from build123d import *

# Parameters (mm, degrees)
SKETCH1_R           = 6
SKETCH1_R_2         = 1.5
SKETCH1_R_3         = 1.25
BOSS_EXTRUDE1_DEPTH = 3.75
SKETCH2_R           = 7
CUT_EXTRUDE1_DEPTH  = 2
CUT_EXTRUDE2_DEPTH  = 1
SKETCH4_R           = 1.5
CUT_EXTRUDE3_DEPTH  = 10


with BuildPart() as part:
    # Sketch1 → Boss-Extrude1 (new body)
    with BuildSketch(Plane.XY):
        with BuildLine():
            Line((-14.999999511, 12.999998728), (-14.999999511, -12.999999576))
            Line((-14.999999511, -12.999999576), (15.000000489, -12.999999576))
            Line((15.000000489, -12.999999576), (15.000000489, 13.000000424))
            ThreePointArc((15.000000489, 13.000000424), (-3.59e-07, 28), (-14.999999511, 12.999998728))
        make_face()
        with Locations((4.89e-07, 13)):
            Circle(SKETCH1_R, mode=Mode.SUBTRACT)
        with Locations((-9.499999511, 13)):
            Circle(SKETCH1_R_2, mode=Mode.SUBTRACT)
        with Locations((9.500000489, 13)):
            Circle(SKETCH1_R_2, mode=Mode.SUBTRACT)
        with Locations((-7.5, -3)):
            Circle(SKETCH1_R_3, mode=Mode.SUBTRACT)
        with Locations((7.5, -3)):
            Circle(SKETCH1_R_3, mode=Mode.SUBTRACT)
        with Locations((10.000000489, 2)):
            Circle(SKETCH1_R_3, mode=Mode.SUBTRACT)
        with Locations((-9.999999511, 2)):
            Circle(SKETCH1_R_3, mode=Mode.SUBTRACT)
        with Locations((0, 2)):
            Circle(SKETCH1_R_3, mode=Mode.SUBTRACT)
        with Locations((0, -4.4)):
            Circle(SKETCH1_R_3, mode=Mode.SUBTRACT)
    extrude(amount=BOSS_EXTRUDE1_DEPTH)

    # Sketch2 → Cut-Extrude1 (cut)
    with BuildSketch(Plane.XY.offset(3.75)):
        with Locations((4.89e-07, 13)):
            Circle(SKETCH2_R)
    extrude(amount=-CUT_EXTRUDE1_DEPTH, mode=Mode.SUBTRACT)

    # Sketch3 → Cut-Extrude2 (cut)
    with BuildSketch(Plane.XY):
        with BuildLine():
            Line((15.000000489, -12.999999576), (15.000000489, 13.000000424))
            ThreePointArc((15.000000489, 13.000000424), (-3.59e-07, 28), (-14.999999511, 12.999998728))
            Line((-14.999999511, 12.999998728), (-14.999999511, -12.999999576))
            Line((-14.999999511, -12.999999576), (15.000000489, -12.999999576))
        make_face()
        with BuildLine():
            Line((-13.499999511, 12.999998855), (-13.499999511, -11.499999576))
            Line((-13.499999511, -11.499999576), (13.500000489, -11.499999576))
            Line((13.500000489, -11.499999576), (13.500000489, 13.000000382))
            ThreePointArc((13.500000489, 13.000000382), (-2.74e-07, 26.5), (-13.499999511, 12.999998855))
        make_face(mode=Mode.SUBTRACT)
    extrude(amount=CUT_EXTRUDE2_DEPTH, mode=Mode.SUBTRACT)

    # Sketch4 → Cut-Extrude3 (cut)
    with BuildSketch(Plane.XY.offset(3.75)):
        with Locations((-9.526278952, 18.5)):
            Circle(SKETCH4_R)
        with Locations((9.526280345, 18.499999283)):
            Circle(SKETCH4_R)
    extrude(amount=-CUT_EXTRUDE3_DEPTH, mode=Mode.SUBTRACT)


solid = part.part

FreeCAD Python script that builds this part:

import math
import FreeCAD as App
import Part
import Sketcher
from FreeCAD import Vector
Q = App.Units.Quantity

doc = App.newDocument("Part")
body = doc.addObject("PartDesign::Body", "Body")

sketch1 = doc.addObject("Sketcher::SketchObject", "Sketch")
body.addObject(sketch1)
sketch1.AttachmentSupport = (doc.XY_Plane, [""])
sketch1.MapMode = "FlatFace"
sketch1.addGeometry(Part.LineSegment(Vector(-15, 13, 0), Vector(-15, -13, 0)), False)
sketch1.addGeometry(Part.LineSegment(Vector(-15, -13, 0), Vector(15, -13, 0)), False)
sketch1.addGeometry(Part.LineSegment(Vector(15, -13, 0), Vector(15, 13, 0)), False)
sketch1.addGeometry(Part.ArcOfCircle(Part.Circle(Vector(0, 13, 0), Vector(0, 0, 1), 15), math.radians(0), math.radians(180)), False)
sketch1.addGeometry(Part.Circle(Vector(-7.5, -3, 0), Vector(0, 0, 1), 1.2), False)
sketch1.addGeometry(Part.Circle(Vector(0, -4.4, 0), Vector(0, 0, 1), 1.2), False)
sketch1.addGeometry(Part.Circle(Vector(-10, 2, 0), Vector(0, 0, 1), 1.2), False)
sketch1.addGeometry(Part.Circle(Vector(0, 2, 0), Vector(0, 0, 1), 1.2), False)
sketch1.addGeometry(Part.Circle(Vector(7.5, -3, 0), Vector(0, 0, 1), 1.2), False)
sketch1.addGeometry(Part.Circle(Vector(10, 2, 0), Vector(0, 0, 1), 1.2), False)
sketch1.addGeometry(Part.Circle(Vector(-9.5, 13, 0), Vector(0, 0, 1), 1.5), False)
sketch1.addGeometry(Part.Circle(Vector(0, 13, 0), Vector(0, 0, 1), 6), False)
sketch1.addGeometry(Part.Circle(Vector(9.5, 13, 0), Vector(0, 0, 1), 1.5), False)
sketch1.addConstraint(Sketcher.Constraint("Coincident", 0, 2, 1, 1))
sketch1.addConstraint(Sketcher.Constraint("Coincident", 1, 2, 2, 1))
sketch1.addConstraint(Sketcher.Constraint("Tangent", 2, 2, 3, 1))
sketch1.addConstraint(Sketcher.Constraint("Tangent", 3, 2, 0, 1))
sketch1.addConstraint(Sketcher.Constraint("Vertical", 0))
sketch1.addConstraint(Sketcher.Constraint("Horizontal", 1))
sketch1.addConstraint(Sketcher.Constraint("Vertical", 2))
sketch1.addConstraint(Sketcher.Constraint("Coincident", 11, 3, 3, 3))
sketch1.addConstraint(Sketcher.Constraint("Equal", 4, 5))
sketch1.addConstraint(Sketcher.Constraint("Equal", 5, 6))
sketch1.addConstraint(Sketcher.Constraint("Equal", 6, 7))
sketch1.addConstraint(Sketcher.Constraint("Equal", 7, 8))
sketch1.addConstraint(Sketcher.Constraint("Equal", 8, 9))
sketch1.addConstraint(Sketcher.Constraint("Equal", 10, 12))
sketch1.addConstraint(Sketcher.Constraint("Symmetric", 0, 2, 2, 2, -1, 1))
sketch1.addConstraint(Sketcher.Constraint("Symmetric", 4, 3, 8, 3, -2))
sketch1.addConstraint(Sketcher.Constraint("Symmetric", 6, 3, 9, 3, -2))
sketch1.addConstraint(Sketcher.Constraint("Symmetric", 10, 3, 12, 3, -2))
sketch1.addConstraint(Sketcher.Constraint("PointOnObject", 5, 3, -2))
sketch1.addConstraint(Sketcher.Constraint("PointOnObject", 7, 3, -2))
sketch1.addConstraint(Sketcher.Constraint("Horizontal", 6, 3, 7, 3))
sketch1.addConstraint(Sketcher.Constraint("Horizontal", 3, 3, 10, 3))
sketch1.addConstraint(Sketcher.Constraint("Diameter", 10, Q("3 mm")))
sketch1.addConstraint(Sketcher.Constraint("Diameter", 11, Q("12 mm")))
sketch1.addConstraint(Sketcher.Constraint("Radius", 3, Q("15 mm")))
sketch1.addConstraint(Sketcher.Constraint("Diameter", 4, Q("2.5 mm")))
sketch1.addConstraint(Sketcher.Constraint("DistanceY", 0, 2, 0, 1, Q("25.999998 mm")))
sketch1.addConstraint(Sketcher.Constraint("DistanceY", 4, 3, -1, 1, Q("3 mm")))
sketch1.addConstraint(Sketcher.Constraint("DistanceX", 6, 3, -1, 1, Q("10 mm")))
sketch1.addConstraint(Sketcher.Constraint("DistanceY", -1, 1, 6, 3, Q("2 mm")))
sketch1.addConstraint(Sketcher.Constraint("DistanceX", 4, 3, 8, 3, Q("15 mm")))
sketch1.addConstraint(Sketcher.Constraint("DistanceX", 10, 3, 4, 3, Q("2 mm")))
sketch1.addConstraint(Sketcher.Constraint("DistanceY", 5, 3, -1, 1, Q("4.4 mm")))
pad1 = doc.addObject("PartDesign::Pad", "Pad")
body.addObject(pad1)
pad1.Profile = sketch1
pad1.Length = 3.75

sketch2 = doc.addObject("Sketcher::SketchObject", "Sketch001")
body.addObject(sketch2)
sketch2.AttachmentSupport = (doc.XY_Plane, [""])
sketch2.MapMode = "FlatFace"
sketch2.AttachmentOffset = App.Placement(Vector(0, 0, 3.75), App.Rotation())
sketch2.addGeometry(Part.Circle(Vector(0, 13, 0), Vector(0, 0, 1), 7), False)
sketch2.addConstraint(Sketcher.Constraint("PointOnObject", 0, 3, -2))
sketch2.addConstraint(Sketcher.Constraint("Diameter", 0, Q("14 mm")))
sketch2.addConstraint(Sketcher.Constraint("DistanceY", -1, 1, 0, 3, Q("13 mm")))
pocket1 = doc.addObject("PartDesign::Pocket", "Pocket")
body.addObject(pocket1)
pocket1.Profile = sketch2
pocket1.Length = 2

sketch3 = doc.addObject("Sketcher::SketchObject", "Sketch002")
body.addObject(sketch3)
sketch3.AttachmentSupport = (doc.XY_Plane, [""])
sketch3.MapMode = "FlatFace"
sketch3.addGeometry(Part.LineSegment(Vector(15, -13, 0), Vector(15, 13, 0)), False)
sketch3.addGeometry(Part.ArcOfCircle(Part.Circle(Vector(0, 13, 0), Vector(0, 0, 1), 15), math.radians(0), math.radians(180)), False)
sketch3.addGeometry(Part.LineSegment(Vector(-15, 13, 0), Vector(-15, -13, 0)), False)
sketch3.addGeometry(Part.LineSegment(Vector(-15, -13, 0), Vector(15, -13, 0)), False)
sketch3.addGeometry(Part.LineSegment(Vector(-13, -11, 0), Vector(-13, 13, 0)), False)
sketch3.addGeometry(Part.ArcOfCircle(Part.Circle(Vector(0, 13, 0), Vector(0, 0, 1), 14), math.radians(0), math.radians(180)), False)
sketch3.addGeometry(Part.LineSegment(Vector(14, 13, 0), Vector(14, -11, 0)), False)
sketch3.addGeometry(Part.LineSegment(Vector(14, -11, 0), Vector(-13, -11, 0)), False)
sketch3.addConstraint(Sketcher.Constraint("Tangent", 0, 2, 1, 1))
sketch3.addConstraint(Sketcher.Constraint("Tangent", 1, 2, 2, 1))
sketch3.addConstraint(Sketcher.Constraint("Coincident", 2, 2, 3, 1))
sketch3.addConstraint(Sketcher.Constraint("Coincident", 3, 2, 0, 1))
sketch3.addConstraint(Sketcher.Constraint("Tangent", 4, 2, 5, 2))
sketch3.addConstraint(Sketcher.Constraint("Tangent", 5, 1, 6, 1))
sketch3.addConstraint(Sketcher.Constraint("Coincident", 6, 2, 7, 1))
sketch3.addConstraint(Sketcher.Constraint("Coincident", 7, 2, 4, 1))
sketch3.addConstraint(Sketcher.Constraint("Vertical", 0))
sketch3.addConstraint(Sketcher.Constraint("Vertical", 2))
sketch3.addConstraint(Sketcher.Constraint("Horizontal", 3))
sketch3.addConstraint(Sketcher.Constraint("Vertical", 4))
sketch3.addConstraint(Sketcher.Constraint("Vertical", 6))
sketch3.addConstraint(Sketcher.Constraint("Horizontal", 7))
sketch3.addConstraint(Sketcher.Constraint("Coincident", 5, 3, 1, 3))
sketch3.addConstraint(Sketcher.Constraint("Symmetric", 0, 2, 2, 2, -1, 1))
sketch3.addConstraint(Sketcher.Constraint("Radius", 1, Q("15 mm")))
sketch3.addConstraint(Sketcher.Constraint("Radius", 5, Q("13.5 mm")))
sketch3.addConstraint(Sketcher.Constraint("DistanceY", 0, 1, 0, 2, Q("26 mm")))
sketch3.addConstraint(Sketcher.Constraint("DistanceY", 4, 1, 4, 2, Q("24.499998 mm")))
pocket2 = doc.addObject("PartDesign::Pocket", "Pocket001")
body.addObject(pocket2)
pocket2.Profile = sketch3
pocket2.Length = 1
pocket2.Reversed = True

sketch4 = doc.addObject("Sketcher::SketchObject", "Sketch003")
body.addObject(sketch4)
sketch4.AttachmentSupport = (doc.XY_Plane, [""])
sketch4.MapMode = "FlatFace"
sketch4.AttachmentOffset = App.Placement(Vector(0, 0, 3.75), App.Rotation())
sketch4.addGeometry(Part.Circle(Vector(-9.5, 18.5, 0), Vector(0, 0, 1), 1.5), False)
sketch4.addGeometry(Part.Circle(Vector(9.5, 18.5, 0), Vector(0, 0, 1), 1.5), False)
sketch4.addConstraint(Sketcher.Constraint("Equal", 0, 1))
sketch4.addConstraint(Sketcher.Constraint("Symmetric", 0, 3, 1, 3, -2))
sketch4.addConstraint(Sketcher.Constraint("Diameter", 0, Q("3 mm")))
sketch4.addConstraint(Sketcher.Constraint("DistanceY", -1, 1, 0, 3, Q("18.5 mm")))
sketch4.addConstraint(Sketcher.Constraint("DistanceX", 0, 3, -1, 1, Q("9.526279 mm")))
pocket3 = doc.addObject("PartDesign::Pocket", "Pocket002")
body.addObject(pocket3)
pocket3.Profile = sketch4
pocket3.Length = 10

doc.recompute()
